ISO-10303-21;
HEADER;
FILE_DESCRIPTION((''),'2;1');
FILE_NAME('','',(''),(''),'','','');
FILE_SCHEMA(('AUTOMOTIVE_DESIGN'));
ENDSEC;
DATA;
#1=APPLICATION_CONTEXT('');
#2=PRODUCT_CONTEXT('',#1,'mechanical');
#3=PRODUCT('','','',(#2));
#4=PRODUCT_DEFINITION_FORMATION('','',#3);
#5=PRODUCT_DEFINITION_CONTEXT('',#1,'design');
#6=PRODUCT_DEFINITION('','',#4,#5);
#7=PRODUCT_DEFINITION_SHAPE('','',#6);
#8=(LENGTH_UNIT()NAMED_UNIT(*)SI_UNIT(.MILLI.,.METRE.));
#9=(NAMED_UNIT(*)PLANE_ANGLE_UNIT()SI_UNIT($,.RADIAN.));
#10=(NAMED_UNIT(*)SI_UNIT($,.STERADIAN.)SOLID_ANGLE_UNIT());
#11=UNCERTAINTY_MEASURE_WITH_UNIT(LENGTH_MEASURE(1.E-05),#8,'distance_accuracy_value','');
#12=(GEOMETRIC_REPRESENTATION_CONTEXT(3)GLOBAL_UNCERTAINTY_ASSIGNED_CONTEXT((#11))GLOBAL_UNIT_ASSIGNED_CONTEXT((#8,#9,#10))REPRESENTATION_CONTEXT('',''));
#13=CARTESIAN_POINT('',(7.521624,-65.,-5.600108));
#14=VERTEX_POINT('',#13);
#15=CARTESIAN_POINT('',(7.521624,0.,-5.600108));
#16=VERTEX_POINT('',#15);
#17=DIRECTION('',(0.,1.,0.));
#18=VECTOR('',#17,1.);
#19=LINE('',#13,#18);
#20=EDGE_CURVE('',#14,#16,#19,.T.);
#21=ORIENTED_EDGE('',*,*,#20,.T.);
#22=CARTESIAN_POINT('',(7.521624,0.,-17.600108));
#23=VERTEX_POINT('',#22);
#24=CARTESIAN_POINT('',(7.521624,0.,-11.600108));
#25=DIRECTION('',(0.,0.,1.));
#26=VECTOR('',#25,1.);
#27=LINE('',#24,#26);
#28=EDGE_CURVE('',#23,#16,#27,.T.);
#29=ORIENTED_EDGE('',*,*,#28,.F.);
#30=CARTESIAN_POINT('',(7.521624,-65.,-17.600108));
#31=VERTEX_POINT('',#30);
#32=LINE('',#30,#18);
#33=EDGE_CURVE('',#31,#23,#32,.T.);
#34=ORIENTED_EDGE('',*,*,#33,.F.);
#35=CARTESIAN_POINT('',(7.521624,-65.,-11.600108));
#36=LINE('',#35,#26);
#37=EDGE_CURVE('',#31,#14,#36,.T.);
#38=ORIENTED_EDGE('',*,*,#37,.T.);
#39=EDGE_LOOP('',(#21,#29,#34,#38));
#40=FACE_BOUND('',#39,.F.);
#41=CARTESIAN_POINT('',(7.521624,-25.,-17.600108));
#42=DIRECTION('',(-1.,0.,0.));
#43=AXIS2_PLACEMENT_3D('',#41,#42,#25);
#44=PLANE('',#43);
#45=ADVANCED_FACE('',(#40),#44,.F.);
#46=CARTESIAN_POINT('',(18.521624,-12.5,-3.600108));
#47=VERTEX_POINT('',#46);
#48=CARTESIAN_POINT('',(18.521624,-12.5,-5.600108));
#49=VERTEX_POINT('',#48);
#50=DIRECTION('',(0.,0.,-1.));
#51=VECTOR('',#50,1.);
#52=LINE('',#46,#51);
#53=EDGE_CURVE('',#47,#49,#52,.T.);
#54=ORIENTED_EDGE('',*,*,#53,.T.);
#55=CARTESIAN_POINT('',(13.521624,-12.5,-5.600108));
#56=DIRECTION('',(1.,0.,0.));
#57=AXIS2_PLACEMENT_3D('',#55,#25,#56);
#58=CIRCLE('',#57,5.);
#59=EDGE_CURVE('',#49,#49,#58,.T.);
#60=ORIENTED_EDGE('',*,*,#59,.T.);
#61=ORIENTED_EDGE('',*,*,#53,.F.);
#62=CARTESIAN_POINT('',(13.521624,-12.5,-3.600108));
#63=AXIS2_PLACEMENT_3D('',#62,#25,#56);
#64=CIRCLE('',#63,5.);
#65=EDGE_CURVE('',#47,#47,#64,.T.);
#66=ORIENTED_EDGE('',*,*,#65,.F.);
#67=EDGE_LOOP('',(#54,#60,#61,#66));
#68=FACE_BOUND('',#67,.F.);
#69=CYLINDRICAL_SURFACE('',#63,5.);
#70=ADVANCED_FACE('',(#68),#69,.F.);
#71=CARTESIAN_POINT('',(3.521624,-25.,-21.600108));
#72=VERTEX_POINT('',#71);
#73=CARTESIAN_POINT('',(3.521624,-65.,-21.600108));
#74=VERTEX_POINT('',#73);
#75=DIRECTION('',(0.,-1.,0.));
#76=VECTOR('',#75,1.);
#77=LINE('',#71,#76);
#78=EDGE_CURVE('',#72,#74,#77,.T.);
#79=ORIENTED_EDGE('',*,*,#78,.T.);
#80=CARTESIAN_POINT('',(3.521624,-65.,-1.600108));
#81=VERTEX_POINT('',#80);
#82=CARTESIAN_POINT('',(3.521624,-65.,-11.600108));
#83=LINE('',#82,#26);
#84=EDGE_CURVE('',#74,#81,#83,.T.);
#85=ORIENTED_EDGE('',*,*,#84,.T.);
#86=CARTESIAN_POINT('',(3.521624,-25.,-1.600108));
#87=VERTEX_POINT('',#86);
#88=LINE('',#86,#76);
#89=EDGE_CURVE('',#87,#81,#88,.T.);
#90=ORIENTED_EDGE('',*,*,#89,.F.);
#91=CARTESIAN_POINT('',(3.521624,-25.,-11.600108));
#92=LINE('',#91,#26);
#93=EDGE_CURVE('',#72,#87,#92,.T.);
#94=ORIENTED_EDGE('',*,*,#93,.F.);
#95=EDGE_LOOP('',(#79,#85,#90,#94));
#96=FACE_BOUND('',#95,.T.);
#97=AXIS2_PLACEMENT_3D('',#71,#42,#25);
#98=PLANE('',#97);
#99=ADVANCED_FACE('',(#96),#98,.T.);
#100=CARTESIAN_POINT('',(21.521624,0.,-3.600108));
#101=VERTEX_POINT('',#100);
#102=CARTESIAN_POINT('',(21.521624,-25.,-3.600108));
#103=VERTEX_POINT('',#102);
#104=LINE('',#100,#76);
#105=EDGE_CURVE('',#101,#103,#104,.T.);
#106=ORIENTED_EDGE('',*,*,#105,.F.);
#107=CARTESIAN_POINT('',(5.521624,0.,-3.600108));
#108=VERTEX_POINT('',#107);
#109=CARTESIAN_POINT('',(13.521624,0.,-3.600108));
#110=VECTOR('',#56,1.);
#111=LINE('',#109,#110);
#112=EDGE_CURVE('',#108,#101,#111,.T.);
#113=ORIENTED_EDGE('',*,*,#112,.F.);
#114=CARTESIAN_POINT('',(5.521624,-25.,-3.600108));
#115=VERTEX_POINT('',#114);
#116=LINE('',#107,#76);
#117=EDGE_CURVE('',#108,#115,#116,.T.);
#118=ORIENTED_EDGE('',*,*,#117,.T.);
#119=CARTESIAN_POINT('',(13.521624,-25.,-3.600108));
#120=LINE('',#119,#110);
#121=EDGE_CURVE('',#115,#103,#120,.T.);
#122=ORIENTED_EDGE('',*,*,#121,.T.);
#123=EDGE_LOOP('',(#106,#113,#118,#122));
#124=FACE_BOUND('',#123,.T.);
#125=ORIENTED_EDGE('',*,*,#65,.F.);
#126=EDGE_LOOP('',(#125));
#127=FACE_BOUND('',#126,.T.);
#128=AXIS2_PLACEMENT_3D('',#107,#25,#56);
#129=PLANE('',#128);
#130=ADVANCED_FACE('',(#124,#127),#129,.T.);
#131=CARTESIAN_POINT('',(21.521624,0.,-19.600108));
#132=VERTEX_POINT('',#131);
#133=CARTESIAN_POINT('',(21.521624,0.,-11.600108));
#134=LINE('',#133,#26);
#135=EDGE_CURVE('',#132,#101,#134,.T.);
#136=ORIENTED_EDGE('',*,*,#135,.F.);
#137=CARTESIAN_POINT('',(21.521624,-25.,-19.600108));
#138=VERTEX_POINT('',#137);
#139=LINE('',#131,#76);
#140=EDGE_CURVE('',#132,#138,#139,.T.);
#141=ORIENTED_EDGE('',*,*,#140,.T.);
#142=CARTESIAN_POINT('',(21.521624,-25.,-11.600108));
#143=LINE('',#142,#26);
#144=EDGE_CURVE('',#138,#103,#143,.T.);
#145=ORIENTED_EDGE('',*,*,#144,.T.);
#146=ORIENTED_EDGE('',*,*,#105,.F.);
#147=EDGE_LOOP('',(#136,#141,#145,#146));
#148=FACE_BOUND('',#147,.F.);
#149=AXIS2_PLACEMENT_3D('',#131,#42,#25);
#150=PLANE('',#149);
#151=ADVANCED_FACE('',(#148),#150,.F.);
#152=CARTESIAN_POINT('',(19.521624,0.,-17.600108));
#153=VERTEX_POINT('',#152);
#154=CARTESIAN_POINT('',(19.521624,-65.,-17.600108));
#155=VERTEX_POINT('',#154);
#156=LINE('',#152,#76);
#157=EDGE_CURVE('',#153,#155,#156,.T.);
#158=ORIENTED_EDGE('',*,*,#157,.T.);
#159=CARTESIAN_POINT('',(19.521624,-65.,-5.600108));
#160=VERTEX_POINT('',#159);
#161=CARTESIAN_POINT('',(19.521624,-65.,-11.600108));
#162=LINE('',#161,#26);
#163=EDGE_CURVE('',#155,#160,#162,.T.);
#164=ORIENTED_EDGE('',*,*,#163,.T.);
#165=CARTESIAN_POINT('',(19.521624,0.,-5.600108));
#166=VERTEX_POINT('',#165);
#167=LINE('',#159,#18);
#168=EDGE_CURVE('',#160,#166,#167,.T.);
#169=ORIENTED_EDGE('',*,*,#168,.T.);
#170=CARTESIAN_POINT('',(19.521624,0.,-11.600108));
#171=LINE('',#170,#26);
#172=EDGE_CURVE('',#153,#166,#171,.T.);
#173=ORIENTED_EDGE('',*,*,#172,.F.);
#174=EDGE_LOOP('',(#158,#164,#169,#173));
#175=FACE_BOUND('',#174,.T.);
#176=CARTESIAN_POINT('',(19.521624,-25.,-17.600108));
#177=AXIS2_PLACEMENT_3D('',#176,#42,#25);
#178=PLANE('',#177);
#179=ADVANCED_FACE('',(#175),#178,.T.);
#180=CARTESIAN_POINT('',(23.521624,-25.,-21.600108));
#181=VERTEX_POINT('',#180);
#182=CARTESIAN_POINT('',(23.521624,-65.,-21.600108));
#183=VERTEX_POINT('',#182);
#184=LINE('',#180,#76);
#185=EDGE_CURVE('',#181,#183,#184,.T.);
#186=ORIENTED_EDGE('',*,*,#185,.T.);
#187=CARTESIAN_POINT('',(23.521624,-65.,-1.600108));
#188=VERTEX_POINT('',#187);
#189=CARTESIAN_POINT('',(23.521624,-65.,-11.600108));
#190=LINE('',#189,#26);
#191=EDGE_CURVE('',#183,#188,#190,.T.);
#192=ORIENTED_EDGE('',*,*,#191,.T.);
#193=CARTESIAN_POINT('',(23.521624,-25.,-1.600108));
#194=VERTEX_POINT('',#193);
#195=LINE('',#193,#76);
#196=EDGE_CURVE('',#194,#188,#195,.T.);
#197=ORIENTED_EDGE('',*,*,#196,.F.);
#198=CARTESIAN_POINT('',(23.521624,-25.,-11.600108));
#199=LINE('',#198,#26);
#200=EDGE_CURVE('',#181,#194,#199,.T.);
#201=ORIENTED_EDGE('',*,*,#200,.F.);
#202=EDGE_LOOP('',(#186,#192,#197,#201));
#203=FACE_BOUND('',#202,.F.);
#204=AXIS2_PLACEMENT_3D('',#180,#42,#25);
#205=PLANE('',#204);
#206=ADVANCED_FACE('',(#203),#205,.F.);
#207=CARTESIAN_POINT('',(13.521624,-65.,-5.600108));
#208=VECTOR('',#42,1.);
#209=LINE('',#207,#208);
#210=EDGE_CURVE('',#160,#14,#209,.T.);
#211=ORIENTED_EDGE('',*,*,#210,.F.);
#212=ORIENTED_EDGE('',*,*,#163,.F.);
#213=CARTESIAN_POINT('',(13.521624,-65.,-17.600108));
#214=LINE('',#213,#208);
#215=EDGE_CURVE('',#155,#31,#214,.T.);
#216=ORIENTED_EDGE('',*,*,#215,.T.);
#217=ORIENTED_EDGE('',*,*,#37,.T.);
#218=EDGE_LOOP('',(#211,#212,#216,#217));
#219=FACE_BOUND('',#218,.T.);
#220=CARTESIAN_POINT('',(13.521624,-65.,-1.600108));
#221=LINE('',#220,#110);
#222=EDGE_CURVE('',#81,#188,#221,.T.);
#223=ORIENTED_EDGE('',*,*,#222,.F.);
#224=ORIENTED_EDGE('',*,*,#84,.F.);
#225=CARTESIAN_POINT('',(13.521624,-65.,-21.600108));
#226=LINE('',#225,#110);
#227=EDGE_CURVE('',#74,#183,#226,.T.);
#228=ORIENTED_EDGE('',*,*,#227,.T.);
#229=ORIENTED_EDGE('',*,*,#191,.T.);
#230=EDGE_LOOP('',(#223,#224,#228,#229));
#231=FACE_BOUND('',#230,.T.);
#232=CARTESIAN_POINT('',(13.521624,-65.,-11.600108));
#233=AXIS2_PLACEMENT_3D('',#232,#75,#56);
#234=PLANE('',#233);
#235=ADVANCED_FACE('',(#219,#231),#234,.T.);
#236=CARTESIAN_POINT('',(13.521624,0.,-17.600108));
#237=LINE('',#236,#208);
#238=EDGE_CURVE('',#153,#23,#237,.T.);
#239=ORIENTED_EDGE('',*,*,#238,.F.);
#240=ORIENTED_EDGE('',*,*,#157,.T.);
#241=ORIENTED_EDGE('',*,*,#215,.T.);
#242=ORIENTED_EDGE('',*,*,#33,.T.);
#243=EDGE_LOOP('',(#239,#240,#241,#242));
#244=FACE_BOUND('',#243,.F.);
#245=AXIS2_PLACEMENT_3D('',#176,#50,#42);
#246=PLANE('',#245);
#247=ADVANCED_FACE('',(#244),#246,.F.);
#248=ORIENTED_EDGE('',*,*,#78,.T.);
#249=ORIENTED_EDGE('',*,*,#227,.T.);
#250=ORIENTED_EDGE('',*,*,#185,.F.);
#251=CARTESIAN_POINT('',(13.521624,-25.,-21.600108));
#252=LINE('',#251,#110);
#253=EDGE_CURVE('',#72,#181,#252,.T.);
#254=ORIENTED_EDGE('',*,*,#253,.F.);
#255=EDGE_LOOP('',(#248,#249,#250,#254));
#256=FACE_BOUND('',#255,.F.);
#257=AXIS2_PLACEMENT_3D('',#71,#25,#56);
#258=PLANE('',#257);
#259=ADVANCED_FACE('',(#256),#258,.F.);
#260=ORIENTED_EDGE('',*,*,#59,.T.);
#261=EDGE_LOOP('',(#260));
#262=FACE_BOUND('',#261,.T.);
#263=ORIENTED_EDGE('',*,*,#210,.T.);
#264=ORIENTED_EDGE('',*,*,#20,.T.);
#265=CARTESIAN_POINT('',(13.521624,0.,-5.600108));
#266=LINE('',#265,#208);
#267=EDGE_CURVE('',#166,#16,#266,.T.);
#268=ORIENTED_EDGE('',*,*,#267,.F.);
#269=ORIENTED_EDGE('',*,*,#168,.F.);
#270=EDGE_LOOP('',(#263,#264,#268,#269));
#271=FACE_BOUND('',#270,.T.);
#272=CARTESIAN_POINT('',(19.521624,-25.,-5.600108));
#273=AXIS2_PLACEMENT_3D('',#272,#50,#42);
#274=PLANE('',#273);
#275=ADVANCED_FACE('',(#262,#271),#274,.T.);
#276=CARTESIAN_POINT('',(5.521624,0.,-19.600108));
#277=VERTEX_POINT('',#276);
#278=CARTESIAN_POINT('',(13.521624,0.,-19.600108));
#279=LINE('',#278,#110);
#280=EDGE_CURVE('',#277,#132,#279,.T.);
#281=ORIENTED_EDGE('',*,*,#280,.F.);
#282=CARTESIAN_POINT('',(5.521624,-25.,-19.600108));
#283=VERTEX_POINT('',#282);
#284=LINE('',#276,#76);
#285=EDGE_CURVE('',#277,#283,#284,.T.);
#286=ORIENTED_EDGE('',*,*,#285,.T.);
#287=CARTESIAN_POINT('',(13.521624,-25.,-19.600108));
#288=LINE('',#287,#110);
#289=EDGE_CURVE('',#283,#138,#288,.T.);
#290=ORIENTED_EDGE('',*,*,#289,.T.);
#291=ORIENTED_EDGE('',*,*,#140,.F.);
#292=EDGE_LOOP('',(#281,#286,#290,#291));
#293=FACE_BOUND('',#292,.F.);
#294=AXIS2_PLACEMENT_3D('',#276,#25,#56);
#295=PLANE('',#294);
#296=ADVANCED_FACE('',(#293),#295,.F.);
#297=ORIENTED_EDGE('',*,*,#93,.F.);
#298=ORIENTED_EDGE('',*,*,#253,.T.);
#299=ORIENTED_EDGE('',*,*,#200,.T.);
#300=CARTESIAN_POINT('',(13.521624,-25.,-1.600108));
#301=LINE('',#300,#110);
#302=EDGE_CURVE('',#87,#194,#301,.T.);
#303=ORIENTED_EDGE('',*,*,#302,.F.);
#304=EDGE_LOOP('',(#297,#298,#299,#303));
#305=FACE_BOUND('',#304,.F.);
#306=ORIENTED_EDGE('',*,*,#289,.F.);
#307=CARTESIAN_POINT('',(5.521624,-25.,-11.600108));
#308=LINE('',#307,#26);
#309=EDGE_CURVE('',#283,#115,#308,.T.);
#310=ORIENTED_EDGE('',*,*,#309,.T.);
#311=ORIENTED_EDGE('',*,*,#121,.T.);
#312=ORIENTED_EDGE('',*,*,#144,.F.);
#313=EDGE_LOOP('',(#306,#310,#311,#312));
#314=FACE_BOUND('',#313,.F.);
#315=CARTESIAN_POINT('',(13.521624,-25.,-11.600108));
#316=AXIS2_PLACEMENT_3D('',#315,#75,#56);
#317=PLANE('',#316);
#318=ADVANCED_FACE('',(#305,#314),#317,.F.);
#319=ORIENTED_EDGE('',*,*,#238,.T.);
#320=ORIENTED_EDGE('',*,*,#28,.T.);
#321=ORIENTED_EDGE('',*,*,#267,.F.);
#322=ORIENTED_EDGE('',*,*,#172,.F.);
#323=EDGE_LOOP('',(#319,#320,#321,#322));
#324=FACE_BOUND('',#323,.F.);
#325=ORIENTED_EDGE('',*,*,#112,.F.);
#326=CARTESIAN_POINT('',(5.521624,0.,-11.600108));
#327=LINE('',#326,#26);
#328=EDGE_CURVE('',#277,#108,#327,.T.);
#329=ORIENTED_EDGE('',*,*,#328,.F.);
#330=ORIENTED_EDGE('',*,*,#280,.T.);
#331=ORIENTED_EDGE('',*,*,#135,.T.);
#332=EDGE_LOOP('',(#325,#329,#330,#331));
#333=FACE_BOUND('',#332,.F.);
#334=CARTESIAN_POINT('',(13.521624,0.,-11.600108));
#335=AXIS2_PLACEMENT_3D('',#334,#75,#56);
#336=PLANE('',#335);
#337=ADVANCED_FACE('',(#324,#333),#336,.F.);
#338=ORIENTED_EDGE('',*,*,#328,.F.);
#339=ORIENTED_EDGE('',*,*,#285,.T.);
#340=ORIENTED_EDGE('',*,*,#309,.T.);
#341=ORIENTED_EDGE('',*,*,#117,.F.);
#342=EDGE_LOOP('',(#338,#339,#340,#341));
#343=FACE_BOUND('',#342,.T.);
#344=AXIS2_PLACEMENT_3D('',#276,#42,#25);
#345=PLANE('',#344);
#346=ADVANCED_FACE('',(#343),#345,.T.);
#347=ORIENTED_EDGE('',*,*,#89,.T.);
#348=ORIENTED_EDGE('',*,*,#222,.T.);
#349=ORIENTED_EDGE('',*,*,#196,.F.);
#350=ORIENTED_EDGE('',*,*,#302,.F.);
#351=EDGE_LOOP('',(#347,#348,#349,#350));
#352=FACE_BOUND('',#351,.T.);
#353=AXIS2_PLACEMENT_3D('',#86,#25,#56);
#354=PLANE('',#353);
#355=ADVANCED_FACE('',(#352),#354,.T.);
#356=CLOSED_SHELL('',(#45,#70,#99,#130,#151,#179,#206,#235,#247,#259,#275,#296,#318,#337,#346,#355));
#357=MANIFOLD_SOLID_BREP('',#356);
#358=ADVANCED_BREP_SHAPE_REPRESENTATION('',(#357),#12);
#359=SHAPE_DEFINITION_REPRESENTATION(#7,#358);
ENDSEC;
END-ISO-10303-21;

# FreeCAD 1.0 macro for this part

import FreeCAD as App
import Part
import Sketcher
Q = App.Units.Quantity


def add_polygon(sketch, points):
    """Adds a closed chain of lines whose ends are joined by coincident constraints."""
    first, n = sketch.GeometryCount, len(points)
    for a, b in zip(points, points[1:] + points[:1]):
        sketch.addGeometry(Part.LineSegment(App.Vector(*a, 0), App.Vector(*b, 0)), False)
    for i in range(n):
        sketch.addConstraint(Sketcher.Constraint("Coincident", first + i, 2, first + (i + 1) % n, 1))

doc = App.newDocument("Part")
params = doc.addObject("Spreadsheet::Sheet", "Params")
for row, (alias, value) in enumerate([
    ("sketch1_width", "16 mm"),
    ("pad1_length", "25 mm"),
    ("sketch2_width", "12 mm"),
    ("pocket1_length", "25 mm"),
    ("sketch3_width", "20 mm"),
    ("pad2_length", "40 mm"),
    ("sketch4_diameter", "10 mm"),
    ("pocket2_length", "2 mm"),
    ("sketch5_width", "12 mm"),
], start=1):
    params.set(f"A{row}", alias)
    params.set(f"B{row}", "=" + value)
    params.setAlias(f"B{row}", alias)

body = doc.addObject("PartDesign::Body", "Body")

sketch1 = body.newObject("Sketcher::SketchObject", "Sketch")
sketch1.AttachmentSupport = (doc.getObject("XZ_Plane"), [""])
sketch1.MapMode = "FlatFace"
add_polygon(sketch1, [(5.521624, -3.600108), (5.521624, -19.600108), (21.521624, -19.600108), (21.521624, -3.600108)])
sketch1.addConstraint([
    Sketcher.Constraint("Vertical", 0),
    Sketcher.Constraint("Horizontal", 1),
    Sketcher.Constraint("Vertical", 2),
    Sketcher.Constraint("Horizontal", 3),
    Sketcher.Constraint("Equal", 3, 0),
    Sketcher.Constraint("DistanceX", 1, 1, 1, 2, Q("16 mm")),
    Sketcher.Constraint("DistanceY", 2, 2, -1, 1, Q("3.600108 mm")),
    Sketcher.Constraint("DistanceX", -1, 1, 0, 2, Q("5.521624 mm")),
])
sketch1.setExpression("Constraints[9]", "Params.sketch1_width")
pad1 = body.newObject("PartDesign::Pad", "Pad")
pad1.Profile = sketch1
pad1.setExpression("Length", "Params.pad1_length")

sketch2 = body.newObject("Sketcher::SketchObject", "Sketch001")
sketch2.AttachmentSupport = (doc.getObject("XZ_Plane"), [""])
sketch2.MapMode = "FlatFace"
add_polygon(sketch2, [(19.521624, -5.600108), (19.521624, -17.600108), (7.521624, -17.600108), (7.521624, -5.600108)])
sketch2.addConstraint([
    Sketcher.Constraint("Vertical", 0),
    Sketcher.Constraint("Horizontal", 1),
    Sketcher.Constraint("Vertical", 2),
    Sketcher.Constraint("Horizontal", 3),
    Sketcher.Constraint("Equal", 3, 0),
    Sketcher.Constraint("DistanceX", 1, 2, 1, 1, Q("12 mm")),
    Sketcher.Constraint("DistanceX", -1, 1, 0, 2, Q("19.521624 mm")),
    Sketcher.Constraint("DistanceY", 0, 2, -1, 1, Q("17.600108 mm")),
])
sketch2.setExpression("Constraints[9]", "Params.sketch2_width")
pocket1 = body.newObject("PartDesign::Pocket", "Pocket")
pocket1.Profile = sketch2
pocket1.setExpression("Length", "Params.pocket1_length")
pocket1.Reversed = True

sketch3 = body.newObject("Sketcher::SketchObject", "Sketch002")
sketch3.AttachmentSupport = (doc.getObject("XZ_Plane"), [""])
sketch3.MapMode = "FlatFace"
sketch3.AttachmentOffset = App.Placement(App.Vector(0, 0, 25), App.Rotation())
add_polygon(sketch3, [(3.521624, -1.600108), (3.521624, -21.600108), (23.521624, -21.600108), (23.521624, -1.600108)])
sketch3.addConstraint([
    Sketcher.Constraint("Vertical", 0),
    Sketcher.Constraint("Horizontal", 1),
    Sketcher.Constraint("Vertical", 2),
    Sketcher.Constraint("Horizontal", 3),
    Sketcher.Constraint("Equal", 3, 0),
    Sketcher.Constraint("DistanceX", 1, 1, 1, 2, Q("20 mm")),
    Sketcher.Constraint("DistanceY", 2, 2, -1, 1, Q("1.600108 mm")),
    Sketcher.Constraint("DistanceX", -1, 1, 0, 2, Q("3.521624 mm")),
])
sketch3.setExpression("Constraints[9]", "Params.sketch3_width")
pad2 = body.newObject("PartDesign::Pad", "Pad001")
pad2.Profile = sketch3
pad2.setExpression("Length", "Params.pad2_length")

sketch4 = body.newObject("Sketcher::SketchObject", "Sketch003")
sketch4.AttachmentSupport = (doc.getObject("XY_Plane"), [""])
sketch4.MapMode = "FlatFace"
sketch4.AttachmentOffset = App.Placement(App.Vector(0, 0, -3.600108), App.Rotation())
sketch4.addGeometry(Part.Circle(App.Vector(13.521624, -12.5, 0), App.Vector(0, 0, 1), 5), False)
sketch4.addConstraint([
    Sketcher.Constraint("Diameter", 0, Q("10 mm")),
    Sketcher.Constraint("DistanceY", 0, 3, -1, 1, Q("12.5 mm")),
    Sketcher.Constraint("DistanceX", -1, 1, 0, 3, Q("13.521624 mm")),
])
sketch4.setExpression("Constraints[0]", "Params.sketch4_diameter")
pocket2 = body.newObject("PartDesign::Pocket", "Pocket001")
pocket2.Profile = sketch4
pocket2.setExpression("Length", "Params.pocket2_length")

sketch5 = body.newObject("Sketcher::SketchObject", "Sketch004")
sketch5.AttachmentSupport = (doc.getObject("XZ_Plane"), [""])
sketch5.MapMode = "FlatFace"
sketch5.AttachmentOffset = App.Placement(App.Vector(0, 0, 25), App.Rotation())
add_polygon(sketch5, [(19.521624, -5.600108), (19.521624, -17.600108), (7.521624, -17.600108), (7.521624, -5.600108)])
sketch5.addConstraint([
    Sketcher.Constraint("Vertical", 0),
    Sketcher.Constraint("Horizontal", 1),
    Sketcher.Constraint("Vertical", 2),
    Sketcher.Constraint("Horizontal", 3),
    Sketcher.Constraint("Equal", 3, 0),
    Sketcher.Constraint("DistanceX", 1, 2, 1, 1, Q("12 mm")),
    Sketcher.Constraint("DistanceX", -1, 1, 0, 2, Q("19.521624 mm")),
    Sketcher.Constraint("DistanceY", 0, 2, -1, 1, Q("17.600108 mm")),
])
sketch5.setExpression("Constraints[9]", "Params.sketch5_width")
pocket3 = body.newObject("PartDesign::Pocket", "Pocket002")
pocket3.Profile = sketch5
pocket3.Type = "ThroughAll"
pocket3.Reversed = True

doc.recompute()
